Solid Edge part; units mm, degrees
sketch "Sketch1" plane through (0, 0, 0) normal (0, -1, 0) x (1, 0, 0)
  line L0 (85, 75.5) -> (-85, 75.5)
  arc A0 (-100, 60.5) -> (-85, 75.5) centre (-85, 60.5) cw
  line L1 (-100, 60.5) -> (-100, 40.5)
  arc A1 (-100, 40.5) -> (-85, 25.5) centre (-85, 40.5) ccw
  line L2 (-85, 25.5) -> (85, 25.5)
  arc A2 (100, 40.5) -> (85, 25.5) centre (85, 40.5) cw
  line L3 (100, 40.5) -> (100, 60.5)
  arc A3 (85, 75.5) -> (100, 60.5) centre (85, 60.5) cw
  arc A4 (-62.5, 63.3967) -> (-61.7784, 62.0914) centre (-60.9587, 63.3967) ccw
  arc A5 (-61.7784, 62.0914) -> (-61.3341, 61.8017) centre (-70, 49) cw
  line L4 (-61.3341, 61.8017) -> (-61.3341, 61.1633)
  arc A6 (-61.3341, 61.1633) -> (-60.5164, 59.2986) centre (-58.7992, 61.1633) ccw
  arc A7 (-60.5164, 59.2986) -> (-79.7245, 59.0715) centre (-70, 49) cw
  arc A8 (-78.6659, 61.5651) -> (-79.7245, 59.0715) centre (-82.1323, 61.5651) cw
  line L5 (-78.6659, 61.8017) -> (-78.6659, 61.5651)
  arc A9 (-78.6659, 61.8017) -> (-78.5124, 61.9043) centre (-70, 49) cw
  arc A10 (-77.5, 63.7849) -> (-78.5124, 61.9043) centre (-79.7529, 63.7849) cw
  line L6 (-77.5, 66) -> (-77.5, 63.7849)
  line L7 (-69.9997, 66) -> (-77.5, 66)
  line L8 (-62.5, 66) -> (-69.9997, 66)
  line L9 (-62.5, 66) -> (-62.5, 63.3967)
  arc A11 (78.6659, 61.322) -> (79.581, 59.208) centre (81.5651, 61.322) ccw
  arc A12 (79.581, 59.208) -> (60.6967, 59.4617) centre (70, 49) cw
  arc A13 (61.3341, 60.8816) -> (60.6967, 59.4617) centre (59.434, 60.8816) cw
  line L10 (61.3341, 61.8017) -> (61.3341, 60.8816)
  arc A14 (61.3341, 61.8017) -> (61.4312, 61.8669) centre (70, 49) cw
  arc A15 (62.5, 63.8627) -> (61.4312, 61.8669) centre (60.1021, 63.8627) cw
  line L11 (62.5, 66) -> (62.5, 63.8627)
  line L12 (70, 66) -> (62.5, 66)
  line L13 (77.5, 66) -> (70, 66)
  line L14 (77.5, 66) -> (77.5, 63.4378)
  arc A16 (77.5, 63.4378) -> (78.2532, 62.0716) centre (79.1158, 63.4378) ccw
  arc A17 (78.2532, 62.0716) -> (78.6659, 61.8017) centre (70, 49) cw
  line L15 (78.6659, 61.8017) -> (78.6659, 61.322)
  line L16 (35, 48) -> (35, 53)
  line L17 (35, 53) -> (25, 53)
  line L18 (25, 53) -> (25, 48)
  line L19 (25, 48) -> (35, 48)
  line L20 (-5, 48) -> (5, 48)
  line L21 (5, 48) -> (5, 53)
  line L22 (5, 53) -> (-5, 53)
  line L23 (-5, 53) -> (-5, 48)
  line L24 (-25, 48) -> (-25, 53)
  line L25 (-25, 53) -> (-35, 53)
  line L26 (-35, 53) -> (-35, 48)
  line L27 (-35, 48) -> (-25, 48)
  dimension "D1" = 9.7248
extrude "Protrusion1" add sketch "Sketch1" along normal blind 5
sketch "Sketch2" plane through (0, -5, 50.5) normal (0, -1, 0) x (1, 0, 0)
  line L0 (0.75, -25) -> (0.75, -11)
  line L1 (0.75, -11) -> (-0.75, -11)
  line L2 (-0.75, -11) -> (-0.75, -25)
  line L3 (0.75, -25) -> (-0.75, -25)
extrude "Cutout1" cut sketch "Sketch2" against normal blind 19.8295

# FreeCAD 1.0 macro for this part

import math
import FreeCAD as App
import Part
import Sketcher

V = App.Vector


def add_polygon(sketch, points):
    """Adds a closed chain of lines whose ends are joined by coincident constraints."""
    first, n = sketch.GeometryCount, len(points)
    for a, b in zip(points, points[1:] + points[:1]):
        sketch.addGeometry(Part.LineSegment(App.Vector(*a, 0), App.Vector(*b, 0)), False)
    for i in range(n):
        sketch.addConstraint(Sketcher.Constraint("Coincident", first + i, 2, first + (i + 1) % n, 1))

doc = App.newDocument("Part")
body = doc.addObject("PartDesign::Body", "Body")

sketch1 = body.newObject("Sketcher::SketchObject", "Sketch")
sketch1.AttachmentSupport = (doc.getObject("XZ_Plane"), [""])
sketch1.MapMode = "FlatFace"
sketch1.addGeometry(Part.ArcOfCircle(Part.Circle(V(85, 60.5, 0), V(0, 0, 1), 15), math.radians(0), math.radians(90)), False)
sketch1.addGeometry(Part.LineSegment(V(85, 75.5, 0), V(-85, 75.5, 0)), False)
sketch1.addGeometry(Part.ArcOfCircle(Part.Circle(V(-85, 60.5, 0), V(0, 0, 1), 15), math.radians(90), math.radians(180)), False)
sketch1.addGeometry(Part.LineSegment(V(-100, 60.5, 0), V(-100, 40.5, 0)), False)
sketch1.addGeometry(Part.ArcOfCircle(Part.Circle(V(-85, 40.5, 0), V(0, 0, 1), 15), math.radians(180), math.radians(270)), False)
sketch1.addGeometry(Part.LineSegment(V(-85, 25.5, 0), V(85, 25.5, 0)), False)
sketch1.addGeometry(Part.ArcOfCircle(Part.Circle(V(85, 40.5, 0), V(0, 0, 1), 15), math.radians(-90), math.radians(0)), False)
sketch1.addGeometry(Part.LineSegment(V(100, 40.5, 0), V(100, 60.5, 0)), False)
sketch1.addGeometry(Part.LineSegment(V(-62.5, 66, 0), V(-62.5, 63.3967, 0)), False)
sketch1.addGeometry(Part.ArcOfCircle(Part.Circle(V(-60.9587, 63.3967, 0), V(0, 0, 1), 1.5413), math.radians(180), math.radians(237.872073)), False)
sketch1.addGeometry(Part.ArcOfCircle(Part.Circle(V(-70.1132, 48.823137, 0), V(0, 0, 1), 15.66894), math.radians(55.924369), math.radians(57.863962)), False)
sketch1.addGeometry(Part.LineSegment(V(-61.3341, 61.8017, 0), V(-61.3341, 61.1633, 0)), False)
sketch1.addGeometry(Part.ArcOfCircle(Part.Circle(V(-58.7992, 61.1633, 0), V(0, 0, 1), 2.5349), math.radians(180), math.radians(227.358066)), False)
sketch1.addGeometry(Part.ArcOfCircle(Part.Circle(V(-70, 49, 0), V(0, 0, 1), 13.999994), math.radians(133.995777), math.radians(407.359175)), False)
sketch1.addGeometry(Part.ArcOfCircle(Part.Circle(V(-82.1323, 61.5651, 0), V(0, 0, 1), 3.4664), math.radians(-46.002872), math.radians(0)), False)
sketch1.addGeometry(Part.LineSegment(V(-78.6659, 61.5651, 0), V(-78.6659, 61.8017, 0)), False)
sketch1.addGeometry(Part.ArcOfCircle(Part.Circle(V(-69.703363, 48.558963, 0), V(0, 0, 1), 15.990533), math.radians(123.428142), math.radians(124.089702)), False)
sketch1.addGeometry(Part.ArcOfCircle(Part.Circle(V(-79.7529, 63.7849, 0), V(0, 0, 1), 2.2529), math.radians(-56.589962), math.radians(0)), False)
sketch1.addGeometry(Part.LineSegment(V(-77.5, 63.7849, 0), V(-77.5, 66, 0)), False)
sketch1.addGeometry(Part.LineSegment(V(-77.5, 66, 0), V(-62.5, 66, 0)), False)
add_polygon(sketch1, [(-25, 53), (-25, 48), (-35, 48), (-35, 53)])
add_polygon(sketch1, [(5, 48), (-5, 48), (-5, 53), (5, 53)])
add_polygon(sketch1, [(35, 53), (35, 48), (25, 48), (25, 53)])
sketch1.addGeometry(Part.LineSegment(V(78.6659, 61.8017, 0), V(78.6659, 61.322, 0)), False)
sketch1.addGeometry(Part.ArcOfCircle(Part.Circle(V(81.5651, 61.322, 0), V(0, 0, 1), 2.8992), math.radians(180), math.radians(226.815532)), False)
sketch1.addGeometry(Part.ArcOfCircle(Part.Circle(V(70, 49, 0), V(0, 0, 1), 13.999958), math.radians(131.645809), math.radians(406.814768)), False)
sketch1.addGeometry(Part.ArcOfCircle(Part.Circle(V(59.434, 60.8816, 0), V(0, 0, 1), 1.9001), math.radians(-48.35369), math.radians(0)), False)
sketch1.addGeometry(Part.LineSegment(V(61.3341, 60.8816, 0), V(61.3341, 61.8017, 0)), False)
sketch1.addGeometry(Part.ArcOfCircle(Part.Circle(V(70.132581, 48.803345, 0), V(0, 0, 1), 15.696194), math.radians(123.666814), math.radians(124.093751)), False)
sketch1.addGeometry(Part.ArcOfCircle(Part.Circle(V(60.1021, 63.8627, 0), V(0, 0, 1), 2.3979), math.radians(-56.338429), math.radians(0)), False)
sketch1.addGeometry(Part.LineSegment(V(62.5, 63.8627, 0), V(62.5, 66, 0)), False)
sketch1.addGeometry(Part.LineSegment(V(62.5, 66, 0), V(77.5, 66, 0)), False)
sketch1.addGeometry(Part.LineSegment(V(77.5, 66, 0), V(77.5, 63.4378, 0)), False)
sketch1.addGeometry(Part.ArcOfCircle(Part.Circle(V(79.1158, 63.4378, 0), V(0, 0, 1), 1.6158), math.radians(180), math.radians(237.732246)), False)
sketch1.addGeometry(Part.ArcOfCircle(Part.Circle(V(70.047234, 49.073504, 0), V(0, 0, 1), 15.371674), math.radians(55.89682), math.radians(57.734935)), False)
sketch1.addConstraint(Sketcher.Constraint("Coincident", 0, 2, 1, 1))
sketch1.addConstraint(Sketcher.Constraint("Coincident", 1, 2, 2, 1))
sketch1.addConstraint(Sketcher.Constraint("Coincident", 2, 2, 3, 1))
sketch1.addConstraint(Sketcher.Constraint("Coincident", 3, 2, 4, 1))
sketch1.addConstraint(Sketcher.Constraint("Coincident", 4, 2, 5, 1))
sketch1.addConstraint(Sketcher.Constraint("Coincident", 5, 2, 6, 1))
sketch1.addConstraint(Sketcher.Constraint("Coincident", 6, 2, 7, 1))
sketch1.addConstraint(Sketcher.Constraint("Coincident", 7, 2, 0, 1))
sketch1.addConstraint(Sketcher.Constraint("Coincident", 8, 2, 9, 1))
sketch1.addConstraint(Sketcher.Constraint("Coincident", 9, 2, 10, 2))
sketch1.addConstraint(Sketcher.Constraint("Coincident", 10, 1, 11, 1))
sketch1.addConstraint(Sketcher.Constraint("Coincident", 11, 2, 12, 1))
sketch1.addConstraint(Sketcher.Constraint("Coincident", 12, 2, 13, 2))
sketch1.addConstraint(Sketcher.Constraint("Coincident", 13, 1, 14, 1))
sketch1.addConstraint(Sketcher.Constraint("Coincident", 14, 2, 15, 1))
sketch1.addConstraint(Sketcher.Constraint("Coincident", 15, 2, 16, 2))
sketch1.addConstraint(Sketcher.Constraint("Coincident", 16, 1, 17, 1))
sketch1.addConstraint(Sketcher.Constraint("Coincident", 17, 2, 18, 1))
sketch1.addConstraint(Sketcher.Constraint("Coincident", 18, 2, 19, 1))
sketch1.addConstraint(Sketcher.Constraint("Coincident", 19, 2, 8, 1))
sketch1.addConstraint(Sketcher.Constraint("Coincident", 32, 2, 33, 1))
sketch1.addConstraint(Sketcher.Constraint("Coincident", 33, 2, 34, 2))
sketch1.addConstraint(Sketcher.Constraint("Coincident", 34, 1, 35, 1))
sketch1.addConstraint(Sketcher.Constraint("Coincident", 35, 2, 36, 1))
sketch1.addConstraint(Sketcher.Constraint("Coincident", 36, 2, 37, 2))
sketch1.addConstraint(Sketcher.Constraint("Coincident", 37, 1, 38, 1))
sketch1.addConstraint(Sketcher.Constraint("Coincident", 38, 2, 39, 1))
sketch1.addConstraint(Sketcher.Constraint("Coincident", 39, 2, 40, 1))
sketch1.addConstraint(Sketcher.Constraint("Coincident", 40, 2, 41, 1))
sketch1.addConstraint(Sketcher.Constraint("Coincident", 41, 2, 42, 1))
sketch1.addConstraint(Sketcher.Constraint("Coincident", 42, 2, 43, 2))
sketch1.addConstraint(Sketcher.Constraint("Coincident", 43, 1, 32, 1))
sketch1.addConstraint(Sketcher.Constraint("Horizontal", 1))
sketch1.addConstraint(Sketcher.Constraint("Vertical", 3))
sketch1.addConstraint(Sketcher.Constraint("Horizontal", 5))
sketch1.addConstraint(Sketcher.Constraint("Vertical", 7))
sketch1.addConstraint(Sketcher.Constraint("Vertical", 8))
sketch1.addConstraint(Sketcher.Constraint("Vertical", 11))
sketch1.addConstraint(Sketcher.Constraint("Vertical", 15))
sketch1.addConstraint(Sketcher.Constraint("Vertical", 18))
sketch1.addConstraint(Sketcher.Constraint("Horizontal", 19))
sketch1.addConstraint(Sketcher.Constraint("Vertical", 20))
sketch1.addConstraint(Sketcher.Constraint("Horizontal", 21))
sketch1.addConstraint(Sketcher.Constraint("Vertical", 22))
sketch1.addConstraint(Sketcher.Constraint("Horizontal", 23))
sketch1.addConstraint(Sketcher.Constraint("Horizontal", 24))
sketch1.addConstraint(Sketcher.Constraint("Vertical", 25))
sketch1.addConstraint(Sketcher.Constraint("Horizontal", 26))
sketch1.addConstraint(Sketcher.Constraint("Vertical", 27))
sketch1.addConstraint(Sketcher.Constraint("Vertical", 28))
sketch1.addConstraint(Sketcher.Constraint("Horizontal", 29))
sketch1.addConstraint(Sketcher.Constraint("Vertical", 30))
sketch1.addConstraint(Sketcher.Constraint("Horizontal", 31))
sketch1.addConstraint(Sketcher.Constraint("Vertical", 32))
sketch1.addConstraint(Sketcher.Constraint("Vertical", 36))
sketch1.addConstraint(Sketcher.Constraint("Vertical", 39))
sketch1.addConstraint(Sketcher.Constraint("Horizontal", 40))
sketch1.addConstraint(Sketcher.Constraint("Vertical", 41))
sketch1.addConstraint(Sketcher.Constraint("Radius", 0, 15.0))
sketch1.addConstraint(Sketcher.Constraint("Radius", 2, 15.0))
sketch1.addConstraint(Sketcher.Constraint("Radius", 4, 15.0))
sketch1.addConstraint(Sketcher.Constraint("Radius", 6, 15.0))
sketch1.addConstraint(Sketcher.Constraint("Radius", 13, 14.0))
sketch1.addConstraint(Sketcher.Constraint("Radius", 34, 14.0))
sketch1.addConstraint(Sketcher.Constraint("Radius", 35, 1.9))
sketch1.addConstraint(Sketcher.Constraint("DistanceX", 1, 2, 1, 1, 170.0))
sketch1.addConstraint(Sketcher.Constraint("DistanceX", 5, 1, 5, 2, 170.0))
sketch1.addConstraint(Sketcher.Constraint("DistanceX", 19, 1, 19, 2, 15.0))
sketch1.addConstraint(Sketcher.Constraint("DistanceX", 21, 2, 21, 1, 10.0))
sketch1.addConstraint(Sketcher.Constraint("DistanceX", 24, 2, 24, 1, 10.0))
sketch1.addConstraint(Sketcher.Constraint("DistanceX", 29, 2, 29, 1, 10.0))
sketch1.addConstraint(Sketcher.Constraint("DistanceX", 40, 1, 40, 2, 15.0))
sketch1.addConstraint(Sketcher.Constraint("DistanceY", 3, 2, 3, 1, 20.0))
sketch1.addConstraint(Sketcher.Constraint("DistanceY", 7, 1, 7, 2, 20.0))
sketch1.addConstraint(Sketcher.Constraint("DistanceY", 20, 2, 20, 1, 5.0))
sketch1.addConstraint(Sketcher.Constraint("DistanceY", 25, 1, 25, 2, 5.0))
sketch1.addConstraint(Sketcher.Constraint("DistanceY", 28, 2, 28, 1, 5.0))
sketch1.addConstraint(Sketcher.Constraint("DistanceX", -1, 1, 0, 3, 85.0))
sketch1.addConstraint(Sketcher.Constraint("DistanceX", 2, 3, -1, 1, 85.0))
sketch1.addConstraint(Sketcher.Constraint("DistanceX", 13, 3, -1, 1, 70.0))
sketch1.addConstraint(Sketcher.Constraint("DistanceY", -1, 1, 13, 3, 49.0))
sketch1.addConstraint(Sketcher.Constraint("DistanceX", -1, 1, 34, 3, 70.0))
sketch1.addConstraint(Sketcher.Constraint("DistanceY", -1, 1, 34, 3, 49.0))
sketch1.addConstraint(Sketcher.Constraint("DistanceX", -1, 1, 0, 2, 85.0))
sketch1.addConstraint(Sketcher.Constraint("DistanceX", 4, 2, -1, 1, 85.0))
sketch1.addConstraint(Sketcher.Constraint("DistanceY", -1, 1, 18, 2, 66.0))
sketch1.addConstraint(Sketcher.Constraint("DistanceX", 20, 2, -1, 1, 25.0))
sketch1.addConstraint(Sketcher.Constraint("DistanceY", -1, 1, 20, 2, 48.0))
sketch1.addConstraint(Sketcher.Constraint("DistanceX", 24, 2, -1, 1, 5.0))
sketch1.addConstraint(Sketcher.Constraint("DistanceY", -1, 1, 24, 2, 48.0))
sketch1.addConstraint(Sketcher.Constraint("DistanceX", -1, 1, 28, 2, 35.0))
sketch1.addConstraint(Sketcher.Constraint("DistanceY", -1, 1, 28, 2, 48.0))
sketch1.addConstraint(Sketcher.Constraint("DistanceY", -1, 1, 39, 2, 66.0))
sketch1.addConstraint(Sketcher.Constraint("Radius", 10, 15.669))
sketch1.addConstraint(Sketcher.Constraint("Radius", 12, 2.535))
sketch1.addConstraint(Sketcher.Constraint("Radius", 17, 2.253))
sketch1.addConstraint(Sketcher.Constraint("Radius", 38, 2.398))
sketch1.addConstraint(Sketcher.Constraint("DistanceY", 36, 1, 36, 2, 0.92))
sketch1.addConstraint(Sketcher.Constraint("DistanceY", -1, 1, 0, 3, 60.5))
sketch1.addConstraint(Sketcher.Constraint("DistanceY", -1, 1, 4, 3, 40.5))
sketch1.addConstraint(Sketcher.Constraint("DistanceY", -1, 1, 2, 2, 60.5))
sketch1.addConstraint(Sketcher.Constraint("DistanceY", -1, 1, 6, 2, 40.5))
sketch1.addConstraint(Sketcher.Constraint("DistanceX", 8, 2, -1, 1, 62.5))
sketch1.addConstraint(Sketcher.Constraint("DistanceX", -1, 1, 38, 2, 62.5))
sketch1.addConstraint(Sketcher.Constraint("Radius", 9, 1.5413))
sketch1.addConstraint(Sketcher.Constraint("Radius", 14, 3.4664))
sketch1.addConstraint(Sketcher.Constraint("Radius", 16, 15.9905))
sketch1.addConstraint(Sketcher.Constraint("Radius", 33, 2.8992))
sketch1.addConstraint(Sketcher.Constraint("Radius", 37, 15.6962))
sketch1.addConstraint(Sketcher.Constraint("Radius", 42, 1.6158))
sketch1.addConstraint(Sketcher.Constraint("Radius", 43, 15.3717))
sketch1.addConstraint(Sketcher.Constraint("DistanceY", 18, 1, 18, 2, 2.215))
sketch1.addConstraint(Sketcher.Constraint("DistanceY", 8, 2, 8, 1, 2.6033))
sketch1.addConstraint(Sketcher.Constraint("DistanceY", 11, 2, 11, 1, 0.6384))
sketch1.addConstraint(Sketcher.Constraint("DistanceY", 15, 1, 15, 2, 0.2366))
sketch1.addConstraint(Sketcher.Constraint("DistanceY", 32, 2, 32, 1, 0.4797))
sketch1.addConstraint(Sketcher.Constraint("DistanceY", 39, 1, 39, 2, 2.1373))
sketch1.addConstraint(Sketcher.Constraint("DistanceY", 41, 2, 41, 1, 2.5622))
sketch1.addConstraint(Sketcher.Constraint("DistanceY", -1, 1, 14, 3, 61.565))
sketch1.addConstraint(Sketcher.Constraint("DistanceY", -1, 1, 16, 3, 48.559))
sketch1.addConstraint(Sketcher.Constraint("DistanceY", -1, 1, 17, 3, 63.785))
sketch1.addConstraint(Sketcher.Constraint("DistanceX", -1, 1, 33, 3, 81.565))
sketch1.addConstraint(Sketcher.Constraint("DistanceX", -1, 1, 35, 3, 59.434))
sketch1.addConstraint(Sketcher.Constraint("DistanceX", 10, 1, -1, 1, 61.334))
sketch1.addConstraint(Sketcher.Constraint("DistanceY", -1, 1, 32, 2, 61.322))
sketch1.addConstraint(Sketcher.Constraint("DistanceX", -1, 1, 33, 2, 79.581))
sketch1.addConstraint(Sketcher.Constraint("DistanceY", -1, 1, 37, 1, 61.867))
sketch1.addConstraint(Sketcher.Constraint("DistanceY", -1, 1, 9, 3, 63.3967))
sketch1.addConstraint(Sketcher.Constraint("DistanceX", 10, 3, -1, 1, 70.1132))
sketch1.addConstraint(Sketcher.Constraint("DistanceX", -1, 1, 37, 3, 70.1326))
sketch1.addConstraint(Sketcher.Constraint("DistanceY", -1, 1, 37, 3, 48.8033))
sketch1.addConstraint(Sketcher.Constraint("DistanceY", -1, 1, 42, 3, 63.4378))
sketch1.addConstraint(Sketcher.Constraint("DistanceX", 9, 2, -1, 1, 61.7784))
sketch1.addConstraint(Sketcher.Constraint("DistanceX", 12, 2, -1, 1, 60.5164))
sketch1.addConstraint(Sketcher.Constraint("DistanceX", 13, 1, -1, 1, 79.7245))
sketch1.addConstraint(Sketcher.Constraint("DistanceX", 16, 1, -1, 1, 78.5124))
sketch1.addConstraint(Sketcher.Constraint("DistanceX", -1, 1, 34, 1, 60.6967))
sketch1.addConstraint(Sketcher.Constraint("DistanceX", -1, 1, 42, 2, 78.2532))
pad1 = body.newObject("PartDesign::Pad", "Pad")
pad1.Profile = sketch1
pad1.Length = 5

sketch2 = body.newObject("Sketcher::SketchObject", "Sketch001")
sketch2.AttachmentSupport = (doc.getObject("XZ_Plane"), [""])
sketch2.MapMode = "FlatFace"
sketch2.AttachmentOffset = App.Placement(V(0, 0, 5), App.Rotation())
add_polygon(sketch2, [(-0.8, 25.5), (0.8, 25.5), (0.8, 39.5), (-0.8, 39.5)])
sketch2.addConstraint(Sketcher.Constraint("Horizontal", 0))
sketch2.addConstraint(Sketcher.Constraint("Vertical", 1))
sketch2.addConstraint(Sketcher.Constraint("Horizontal", 2))
sketch2.addConstraint(Sketcher.Constraint("Vertical", 3))
sketch2.addConstraint(Sketcher.Constraint("DistanceY", 1, 1, 1, 2, 14.0))
sketch2.addConstraint(Sketcher.Constraint("DistanceX", 0, 1, 0, 2, 1.5))
sketch2.addConstraint(Sketcher.Constraint("DistanceY", -1, 1, 0, 2, 25.5))
sketch2.addConstraint(Sketcher.Constraint("DistanceX", -1, 1, 0, 2, 0.75))
pocket1 = body.newObject("PartDesign::Pocket", "Pocket")
pocket1.Profile = sketch2
pocket1.Length = 19.8295

doc.recompute()
